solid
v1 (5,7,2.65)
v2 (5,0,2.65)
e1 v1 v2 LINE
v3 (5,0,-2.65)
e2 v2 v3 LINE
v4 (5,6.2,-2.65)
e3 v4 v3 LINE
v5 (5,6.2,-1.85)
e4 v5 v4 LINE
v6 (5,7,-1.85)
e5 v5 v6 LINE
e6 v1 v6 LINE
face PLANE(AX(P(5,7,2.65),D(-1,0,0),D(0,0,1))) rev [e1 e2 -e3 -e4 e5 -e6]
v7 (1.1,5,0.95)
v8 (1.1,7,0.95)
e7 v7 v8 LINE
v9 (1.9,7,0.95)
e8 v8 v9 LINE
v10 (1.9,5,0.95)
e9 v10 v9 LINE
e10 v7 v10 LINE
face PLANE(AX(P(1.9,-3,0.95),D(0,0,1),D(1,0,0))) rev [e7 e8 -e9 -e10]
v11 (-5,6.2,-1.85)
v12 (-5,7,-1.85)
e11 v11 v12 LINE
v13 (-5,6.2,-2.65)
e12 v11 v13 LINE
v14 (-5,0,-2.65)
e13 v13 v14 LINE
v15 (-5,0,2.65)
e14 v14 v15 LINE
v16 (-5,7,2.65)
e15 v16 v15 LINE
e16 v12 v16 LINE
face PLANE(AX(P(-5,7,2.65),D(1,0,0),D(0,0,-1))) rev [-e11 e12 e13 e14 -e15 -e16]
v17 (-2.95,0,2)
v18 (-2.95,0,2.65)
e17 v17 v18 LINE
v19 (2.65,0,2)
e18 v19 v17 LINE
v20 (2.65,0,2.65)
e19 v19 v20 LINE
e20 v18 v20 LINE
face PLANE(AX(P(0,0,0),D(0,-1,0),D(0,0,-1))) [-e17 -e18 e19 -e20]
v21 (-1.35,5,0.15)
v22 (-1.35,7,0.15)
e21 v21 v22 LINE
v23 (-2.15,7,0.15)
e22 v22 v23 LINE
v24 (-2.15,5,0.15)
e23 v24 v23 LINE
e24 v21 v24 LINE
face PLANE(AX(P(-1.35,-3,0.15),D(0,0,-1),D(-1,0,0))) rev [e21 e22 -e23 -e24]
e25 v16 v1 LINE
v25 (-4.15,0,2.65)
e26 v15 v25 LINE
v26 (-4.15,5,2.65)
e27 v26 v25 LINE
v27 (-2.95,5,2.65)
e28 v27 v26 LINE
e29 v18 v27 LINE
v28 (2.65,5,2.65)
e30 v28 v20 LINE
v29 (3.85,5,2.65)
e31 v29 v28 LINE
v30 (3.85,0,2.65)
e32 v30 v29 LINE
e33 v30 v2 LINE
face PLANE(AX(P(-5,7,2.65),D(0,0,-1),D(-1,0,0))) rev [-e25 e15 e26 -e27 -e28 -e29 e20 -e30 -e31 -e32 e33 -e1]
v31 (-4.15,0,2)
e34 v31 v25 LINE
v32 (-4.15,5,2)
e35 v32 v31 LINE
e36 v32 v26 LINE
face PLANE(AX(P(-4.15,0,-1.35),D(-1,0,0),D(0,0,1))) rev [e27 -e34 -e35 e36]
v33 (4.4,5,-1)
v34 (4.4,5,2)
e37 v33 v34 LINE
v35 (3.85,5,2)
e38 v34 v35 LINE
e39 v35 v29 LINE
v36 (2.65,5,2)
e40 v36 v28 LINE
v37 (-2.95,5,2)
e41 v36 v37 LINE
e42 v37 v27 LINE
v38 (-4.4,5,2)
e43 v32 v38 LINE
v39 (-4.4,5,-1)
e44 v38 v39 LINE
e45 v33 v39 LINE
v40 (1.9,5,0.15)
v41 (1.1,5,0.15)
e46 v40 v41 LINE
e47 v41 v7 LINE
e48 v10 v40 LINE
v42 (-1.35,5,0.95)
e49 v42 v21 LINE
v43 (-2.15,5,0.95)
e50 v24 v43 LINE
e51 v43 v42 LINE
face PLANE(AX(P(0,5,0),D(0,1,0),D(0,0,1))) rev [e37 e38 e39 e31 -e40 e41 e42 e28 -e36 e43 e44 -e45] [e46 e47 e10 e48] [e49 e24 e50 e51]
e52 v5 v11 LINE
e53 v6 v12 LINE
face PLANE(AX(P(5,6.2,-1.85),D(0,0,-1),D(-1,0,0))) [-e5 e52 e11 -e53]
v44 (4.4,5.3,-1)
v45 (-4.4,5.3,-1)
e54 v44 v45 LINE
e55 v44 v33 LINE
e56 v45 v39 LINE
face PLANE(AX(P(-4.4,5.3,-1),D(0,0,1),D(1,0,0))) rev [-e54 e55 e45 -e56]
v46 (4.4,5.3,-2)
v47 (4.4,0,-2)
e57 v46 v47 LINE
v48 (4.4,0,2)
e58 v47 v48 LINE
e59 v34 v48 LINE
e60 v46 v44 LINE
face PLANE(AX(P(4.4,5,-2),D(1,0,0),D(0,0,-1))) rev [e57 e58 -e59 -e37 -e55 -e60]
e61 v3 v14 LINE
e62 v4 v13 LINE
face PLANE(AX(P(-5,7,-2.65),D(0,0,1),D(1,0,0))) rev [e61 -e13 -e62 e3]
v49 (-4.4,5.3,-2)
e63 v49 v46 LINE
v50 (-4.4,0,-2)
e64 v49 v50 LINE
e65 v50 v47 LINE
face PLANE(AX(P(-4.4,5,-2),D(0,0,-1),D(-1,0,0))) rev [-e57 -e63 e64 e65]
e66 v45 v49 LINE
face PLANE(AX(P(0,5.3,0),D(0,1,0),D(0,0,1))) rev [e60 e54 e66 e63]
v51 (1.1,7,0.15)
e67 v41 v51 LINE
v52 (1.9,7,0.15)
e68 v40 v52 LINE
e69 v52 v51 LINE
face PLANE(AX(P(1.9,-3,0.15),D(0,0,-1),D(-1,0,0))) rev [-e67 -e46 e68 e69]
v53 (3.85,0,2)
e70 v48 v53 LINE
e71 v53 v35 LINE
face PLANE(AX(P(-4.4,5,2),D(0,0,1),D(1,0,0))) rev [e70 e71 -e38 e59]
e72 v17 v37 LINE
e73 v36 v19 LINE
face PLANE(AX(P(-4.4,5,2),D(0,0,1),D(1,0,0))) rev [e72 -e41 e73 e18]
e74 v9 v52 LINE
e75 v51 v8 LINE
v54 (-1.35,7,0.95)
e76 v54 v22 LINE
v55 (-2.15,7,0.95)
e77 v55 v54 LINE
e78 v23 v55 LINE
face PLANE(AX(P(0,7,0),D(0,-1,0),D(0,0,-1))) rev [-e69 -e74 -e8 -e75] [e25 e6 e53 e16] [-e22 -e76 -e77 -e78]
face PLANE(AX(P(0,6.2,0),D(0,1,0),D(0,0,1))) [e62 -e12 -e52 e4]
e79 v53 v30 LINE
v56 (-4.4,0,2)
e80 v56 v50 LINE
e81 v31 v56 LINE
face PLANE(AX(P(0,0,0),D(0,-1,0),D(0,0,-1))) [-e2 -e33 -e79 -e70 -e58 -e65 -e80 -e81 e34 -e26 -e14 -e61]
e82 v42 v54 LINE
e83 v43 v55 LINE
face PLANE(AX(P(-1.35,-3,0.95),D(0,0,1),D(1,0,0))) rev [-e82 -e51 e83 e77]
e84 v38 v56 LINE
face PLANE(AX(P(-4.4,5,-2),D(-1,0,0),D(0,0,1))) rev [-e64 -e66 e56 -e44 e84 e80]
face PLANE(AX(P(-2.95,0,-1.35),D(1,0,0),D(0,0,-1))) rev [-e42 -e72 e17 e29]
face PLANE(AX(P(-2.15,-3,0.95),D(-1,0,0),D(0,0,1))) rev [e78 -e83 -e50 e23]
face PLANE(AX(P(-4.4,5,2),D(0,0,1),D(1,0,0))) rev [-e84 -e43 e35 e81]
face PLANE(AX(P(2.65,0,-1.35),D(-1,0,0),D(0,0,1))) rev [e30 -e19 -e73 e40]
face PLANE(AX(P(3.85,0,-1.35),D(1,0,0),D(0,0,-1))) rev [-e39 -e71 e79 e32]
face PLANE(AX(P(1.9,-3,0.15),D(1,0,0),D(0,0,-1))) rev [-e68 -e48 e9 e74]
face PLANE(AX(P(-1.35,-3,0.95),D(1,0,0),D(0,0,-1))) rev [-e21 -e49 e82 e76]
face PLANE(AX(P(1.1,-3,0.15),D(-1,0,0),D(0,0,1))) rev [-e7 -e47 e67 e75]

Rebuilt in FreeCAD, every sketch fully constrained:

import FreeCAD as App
import Part
import Sketcher


def add_polygon(sketch, points):
    """Adds a closed chain of lines whose ends are joined by coincident constraints."""
    first, n = sketch.GeometryCount, len(points)
    for a, b in zip(points, points[1:] + points[:1]):
        sketch.addGeometry(Part.LineSegment(App.Vector(*a, 0), App.Vector(*b, 0)), False)
    for i in range(n):
        sketch.addConstraint(Sketcher.Constraint("Coincident", first + i, 2, first + (i + 1) % n, 1))

doc = App.newDocument("Part")
body = doc.addObject("PartDesign::Body", "Body")

# Sketch on XZ plane
sketch1 = doc.addObject("Sketcher::SketchObject", "Sketch")
body.addObject(sketch1)
sketch1.AttachmentSupport = (doc.XZ_Plane, [""])
sketch1.MapMode = "FlatFace"
add_polygon(sketch1, [(-5, -3), (-5, 3), (5, 3), (5, -3)])  # lines 0-3
sketch1.addConstraint([
    Sketcher.Constraint("Vertical", 0),
    Sketcher.Constraint("Horizontal", 1),
    Sketcher.Constraint("Vertical", 2),
    Sketcher.Constraint("Horizontal", 3),
    Sketcher.Constraint("Symmetric", 0, 2, 2, 2, -1, 1),
    Sketcher.Constraint("DistanceX", 1, 1, 1, 2, 10.0),
    Sketcher.Constraint("DistanceY", 0, 1, 0, 2, 5.3),
])
pad1 = doc.addObject("PartDesign::Pad", "Pad")
body.addObject(pad1)
pad1.Profile = sketch1
pad1.Length = 7
pad1.Reversed = True

# Sketch on XZ plane
sketch2 = doc.addObject("Sketcher::SketchObject", "Sketch001")
body.addObject(sketch2)
sketch2.AttachmentSupport = (doc.XZ_Plane, [""])
sketch2.MapMode = "FlatFace"
add_polygon(sketch2, [(-4.4, 2), (-4.4, -2), (4.4, -2), (4.4, 2)])  # lines 0-3
sketch2.addConstraint([
    Sketcher.Constraint("Vertical", 0),
    Sketcher.Constraint("Horizontal", 1),
    Sketcher.Constraint("Vertical", 2),
    Sketcher.Constraint("Horizontal", 3),
    Sketcher.Constraint("Symmetric", 0, 2, 2, 2, -1, 1),
    Sketcher.Constraint("DistanceY", 0, 2, 0, 1, 4.0),
    Sketcher.Constraint("DistanceX", 1, 1, 1, 2, 8.8),
])
pocket1 = doc.addObject("PartDesign::Pocket", "Pocket")
body.addObject(pocket1)
pocket1.Profile = sketch2
pocket1.Length = 5

# Sketch on XY plane
sketch3 = doc.addObject("Sketcher::SketchObject", "Sketch002")
body.addObject(sketch3)
sketch3.AttachmentSupport = (doc.XY_Plane, [""])
sketch3.MapMode = "FlatFace"
sketch3.AttachmentOffset = App.Placement(App.Vector(0, 0, 2.65), App.Rotation())
add_polygon(sketch3, [(-4.2, 5), (-4.2, 0), (-3, 0), (-3, 5)])  # lines 0-3
add_polygon(sketch3, [(2.6, 5), (2.6, 0), (3.9, 0), (3.9, 5)])  # lines 4-7
sketch3.addConstraint([
    Sketcher.Constraint("Vertical", 0),
    Sketcher.Constraint("Horizontal", 1),
    Sketcher.Constraint("Vertical", 2),
    Sketcher.Constraint("Horizontal", 3),
    Sketcher.Constraint("Vertical", 4),
    Sketcher.Constraint("Horizontal", 5),
    Sketcher.Constraint("Vertical", 6),
    Sketcher.Constraint("Horizontal", 7),
    Sketcher.Constraint("PointOnObject", 0, 2, -1),
    Sketcher.Constraint("PointOnObject", 4, 2, -1),
    Sketcher.Constraint("Horizontal", 3, 2, 6, 2),
    Sketcher.Constraint("Equal", 3, 5),
    Sketcher.Constraint("DistanceY", 0, 2, 0, 1, 5.0),
    Sketcher.Constraint("DistanceX", 1, 1, 1, 2, 1.2),
    Sketcher.Constraint("DistanceX", 0, 2, 5, 2, 8.0),
    Sketcher.Constraint("DistanceX", 0, 2, -1, 1, 4.15),
])
pocket2 = doc.addObject("PartDesign::Pocket", "Pocket001")
body.addObject(pocket2)
pocket2.Profile = sketch3
pocket2.Length = 4

# Sketch on XZ plane
sketch4 = doc.addObject("Sketcher::SketchObject", "Sketch003")
body.addObject(sketch4)
sketch4.AttachmentSupport = (doc.XZ_Plane, [""])
sketch4.MapMode = "FlatFace"
sketch4.AttachmentOffset = App.Placement(App.Vector(0, 0, -7), App.Rotation())
add_polygon(sketch4, [(-5, -2.6), (-5, -1.9), (5, -1.9), (5, -2.6)])  # lines 0-3
sketch4.addConstraint([
    Sketcher.Constraint("Vertical", 0),
    Sketcher.Constraint("Horizontal", 1),
    Sketcher.Constraint("Vertical", 2),
    Sketcher.Constraint("Horizontal", 3),
    Sketcher.Constraint("DistanceX", 1, 1, 1, 2, 10.0),
    Sketcher.Constraint("DistanceY", 0, 1, 0, 2, 0.8),
    Sketcher.Constraint("DistanceX", 0, 2, -1, 1, 5.0),
    Sketcher.Constraint("DistanceY", 0, 2, -1, 1, 1.85),
])
pocket3 = doc.addObject("PartDesign::Pocket", "Pocket002")
body.addObject(pocket3)
pocket3.Profile = sketch4
pocket3.Length = 0.8
pocket3.Reversed = True

# Sketch on XZ plane
sketch5 = doc.addObject("Sketcher::SketchObject", "Sketch004")
body.addObject(sketch5)
sketch5.AttachmentSupport = (doc.XZ_Plane, [""])
sketch5.MapMode = "FlatFace"
sketch5.AttachmentOffset = App.Placement(App.Vector(0, 0, -7), App.Rotation())
add_polygon(sketch5, [(1.1, 0.1), (1.1, 0.9), (1.9, 0.9), (1.9, 0.1)])  # lines 0-3
add_polygon(sketch5, [(-2.1, 0.1), (-2.1, 0.9), (-1.4, 0.9), (-1.4, 0.1)])  # lines 4-7
sketch5.addConstraint([
    Sketcher.Constraint("Vertical", 0),
    Sketcher.Constraint("Horizontal", 1),
    Sketcher.Constraint("Vertical", 2),
    Sketcher.Constraint("Horizontal", 3),
    Sketcher.Constraint("Vertical", 4),
    Sketcher.Constraint("Horizontal", 5),
    Sketcher.Constraint("Vertical", 6),
    Sketcher.Constraint("Horizontal", 7),
    Sketcher.Constraint("Horizontal", 1, 2, 4, 2),
    Sketcher.Constraint("Horizontal", 3, 2, 6, 2),
    Sketcher.Constraint("Equal", 3, 5),
    Sketcher.Constraint("Equal", 7, 0),
    Sketcher.Constraint("DistanceX", 1, 1, 1, 2, 0.8),
    Sketcher.Constraint("DistanceX", -1, 1, 0, 2, 1.1),
    Sketcher.Constraint("DistanceY", -1, 1, 0, 2, 0.95),
    Sketcher.Constraint("DistanceX", 4, 2, -1, 1, 2.15),
])
pocket4 = doc.addObject("PartDesign::Pocket", "Pocket003")
body.addObject(pocket4)
pocket4.Profile = sketch5
pocket4.Length = 10
pocket4.Reversed = True

# Sketch on XZ plane
sketch6 = doc.addObject("Sketcher::SketchObject", "Sketch005")
body.addObject(sketch6)
sketch6.AttachmentSupport = (doc.XZ_Plane, [""])
sketch6.MapMode = "FlatFace"
sketch6.AttachmentOffset = App.Placement(App.Vector(0, 0, -5), App.Rotation())
add_polygon(sketch6, [(-4.4, -1), (-4.4, -2), (4.4, -2), (4.4, -1)])  # lines 0-3
sketch6.addConstraint([
    Sketcher.Constraint("Vertical", 0),
    Sketcher.Constraint("Horizontal", 1),
    Sketcher.Constraint("Vertical", 2),
    Sketcher.Constraint("Horizontal", 3),
    Sketcher.Constraint("DistanceY", 0, 2, 0, 1, 1.0),
    Sketcher.Constraint("DistanceX", 1, 1, 1, 2, 8.8),
    Sketcher.Constraint("DistanceY", 0, 2, -1, 1, 2.0),
    Sketcher.Constraint("DistanceX", 0, 2, -1, 1, 4.4),
])
pocket5 = doc.addObject("PartDesign::Pocket", "Pocket004")
body.addObject(pocket5)
pocket5.Profile = sketch6
pocket5.Length = 0.3

doc.recompute()
